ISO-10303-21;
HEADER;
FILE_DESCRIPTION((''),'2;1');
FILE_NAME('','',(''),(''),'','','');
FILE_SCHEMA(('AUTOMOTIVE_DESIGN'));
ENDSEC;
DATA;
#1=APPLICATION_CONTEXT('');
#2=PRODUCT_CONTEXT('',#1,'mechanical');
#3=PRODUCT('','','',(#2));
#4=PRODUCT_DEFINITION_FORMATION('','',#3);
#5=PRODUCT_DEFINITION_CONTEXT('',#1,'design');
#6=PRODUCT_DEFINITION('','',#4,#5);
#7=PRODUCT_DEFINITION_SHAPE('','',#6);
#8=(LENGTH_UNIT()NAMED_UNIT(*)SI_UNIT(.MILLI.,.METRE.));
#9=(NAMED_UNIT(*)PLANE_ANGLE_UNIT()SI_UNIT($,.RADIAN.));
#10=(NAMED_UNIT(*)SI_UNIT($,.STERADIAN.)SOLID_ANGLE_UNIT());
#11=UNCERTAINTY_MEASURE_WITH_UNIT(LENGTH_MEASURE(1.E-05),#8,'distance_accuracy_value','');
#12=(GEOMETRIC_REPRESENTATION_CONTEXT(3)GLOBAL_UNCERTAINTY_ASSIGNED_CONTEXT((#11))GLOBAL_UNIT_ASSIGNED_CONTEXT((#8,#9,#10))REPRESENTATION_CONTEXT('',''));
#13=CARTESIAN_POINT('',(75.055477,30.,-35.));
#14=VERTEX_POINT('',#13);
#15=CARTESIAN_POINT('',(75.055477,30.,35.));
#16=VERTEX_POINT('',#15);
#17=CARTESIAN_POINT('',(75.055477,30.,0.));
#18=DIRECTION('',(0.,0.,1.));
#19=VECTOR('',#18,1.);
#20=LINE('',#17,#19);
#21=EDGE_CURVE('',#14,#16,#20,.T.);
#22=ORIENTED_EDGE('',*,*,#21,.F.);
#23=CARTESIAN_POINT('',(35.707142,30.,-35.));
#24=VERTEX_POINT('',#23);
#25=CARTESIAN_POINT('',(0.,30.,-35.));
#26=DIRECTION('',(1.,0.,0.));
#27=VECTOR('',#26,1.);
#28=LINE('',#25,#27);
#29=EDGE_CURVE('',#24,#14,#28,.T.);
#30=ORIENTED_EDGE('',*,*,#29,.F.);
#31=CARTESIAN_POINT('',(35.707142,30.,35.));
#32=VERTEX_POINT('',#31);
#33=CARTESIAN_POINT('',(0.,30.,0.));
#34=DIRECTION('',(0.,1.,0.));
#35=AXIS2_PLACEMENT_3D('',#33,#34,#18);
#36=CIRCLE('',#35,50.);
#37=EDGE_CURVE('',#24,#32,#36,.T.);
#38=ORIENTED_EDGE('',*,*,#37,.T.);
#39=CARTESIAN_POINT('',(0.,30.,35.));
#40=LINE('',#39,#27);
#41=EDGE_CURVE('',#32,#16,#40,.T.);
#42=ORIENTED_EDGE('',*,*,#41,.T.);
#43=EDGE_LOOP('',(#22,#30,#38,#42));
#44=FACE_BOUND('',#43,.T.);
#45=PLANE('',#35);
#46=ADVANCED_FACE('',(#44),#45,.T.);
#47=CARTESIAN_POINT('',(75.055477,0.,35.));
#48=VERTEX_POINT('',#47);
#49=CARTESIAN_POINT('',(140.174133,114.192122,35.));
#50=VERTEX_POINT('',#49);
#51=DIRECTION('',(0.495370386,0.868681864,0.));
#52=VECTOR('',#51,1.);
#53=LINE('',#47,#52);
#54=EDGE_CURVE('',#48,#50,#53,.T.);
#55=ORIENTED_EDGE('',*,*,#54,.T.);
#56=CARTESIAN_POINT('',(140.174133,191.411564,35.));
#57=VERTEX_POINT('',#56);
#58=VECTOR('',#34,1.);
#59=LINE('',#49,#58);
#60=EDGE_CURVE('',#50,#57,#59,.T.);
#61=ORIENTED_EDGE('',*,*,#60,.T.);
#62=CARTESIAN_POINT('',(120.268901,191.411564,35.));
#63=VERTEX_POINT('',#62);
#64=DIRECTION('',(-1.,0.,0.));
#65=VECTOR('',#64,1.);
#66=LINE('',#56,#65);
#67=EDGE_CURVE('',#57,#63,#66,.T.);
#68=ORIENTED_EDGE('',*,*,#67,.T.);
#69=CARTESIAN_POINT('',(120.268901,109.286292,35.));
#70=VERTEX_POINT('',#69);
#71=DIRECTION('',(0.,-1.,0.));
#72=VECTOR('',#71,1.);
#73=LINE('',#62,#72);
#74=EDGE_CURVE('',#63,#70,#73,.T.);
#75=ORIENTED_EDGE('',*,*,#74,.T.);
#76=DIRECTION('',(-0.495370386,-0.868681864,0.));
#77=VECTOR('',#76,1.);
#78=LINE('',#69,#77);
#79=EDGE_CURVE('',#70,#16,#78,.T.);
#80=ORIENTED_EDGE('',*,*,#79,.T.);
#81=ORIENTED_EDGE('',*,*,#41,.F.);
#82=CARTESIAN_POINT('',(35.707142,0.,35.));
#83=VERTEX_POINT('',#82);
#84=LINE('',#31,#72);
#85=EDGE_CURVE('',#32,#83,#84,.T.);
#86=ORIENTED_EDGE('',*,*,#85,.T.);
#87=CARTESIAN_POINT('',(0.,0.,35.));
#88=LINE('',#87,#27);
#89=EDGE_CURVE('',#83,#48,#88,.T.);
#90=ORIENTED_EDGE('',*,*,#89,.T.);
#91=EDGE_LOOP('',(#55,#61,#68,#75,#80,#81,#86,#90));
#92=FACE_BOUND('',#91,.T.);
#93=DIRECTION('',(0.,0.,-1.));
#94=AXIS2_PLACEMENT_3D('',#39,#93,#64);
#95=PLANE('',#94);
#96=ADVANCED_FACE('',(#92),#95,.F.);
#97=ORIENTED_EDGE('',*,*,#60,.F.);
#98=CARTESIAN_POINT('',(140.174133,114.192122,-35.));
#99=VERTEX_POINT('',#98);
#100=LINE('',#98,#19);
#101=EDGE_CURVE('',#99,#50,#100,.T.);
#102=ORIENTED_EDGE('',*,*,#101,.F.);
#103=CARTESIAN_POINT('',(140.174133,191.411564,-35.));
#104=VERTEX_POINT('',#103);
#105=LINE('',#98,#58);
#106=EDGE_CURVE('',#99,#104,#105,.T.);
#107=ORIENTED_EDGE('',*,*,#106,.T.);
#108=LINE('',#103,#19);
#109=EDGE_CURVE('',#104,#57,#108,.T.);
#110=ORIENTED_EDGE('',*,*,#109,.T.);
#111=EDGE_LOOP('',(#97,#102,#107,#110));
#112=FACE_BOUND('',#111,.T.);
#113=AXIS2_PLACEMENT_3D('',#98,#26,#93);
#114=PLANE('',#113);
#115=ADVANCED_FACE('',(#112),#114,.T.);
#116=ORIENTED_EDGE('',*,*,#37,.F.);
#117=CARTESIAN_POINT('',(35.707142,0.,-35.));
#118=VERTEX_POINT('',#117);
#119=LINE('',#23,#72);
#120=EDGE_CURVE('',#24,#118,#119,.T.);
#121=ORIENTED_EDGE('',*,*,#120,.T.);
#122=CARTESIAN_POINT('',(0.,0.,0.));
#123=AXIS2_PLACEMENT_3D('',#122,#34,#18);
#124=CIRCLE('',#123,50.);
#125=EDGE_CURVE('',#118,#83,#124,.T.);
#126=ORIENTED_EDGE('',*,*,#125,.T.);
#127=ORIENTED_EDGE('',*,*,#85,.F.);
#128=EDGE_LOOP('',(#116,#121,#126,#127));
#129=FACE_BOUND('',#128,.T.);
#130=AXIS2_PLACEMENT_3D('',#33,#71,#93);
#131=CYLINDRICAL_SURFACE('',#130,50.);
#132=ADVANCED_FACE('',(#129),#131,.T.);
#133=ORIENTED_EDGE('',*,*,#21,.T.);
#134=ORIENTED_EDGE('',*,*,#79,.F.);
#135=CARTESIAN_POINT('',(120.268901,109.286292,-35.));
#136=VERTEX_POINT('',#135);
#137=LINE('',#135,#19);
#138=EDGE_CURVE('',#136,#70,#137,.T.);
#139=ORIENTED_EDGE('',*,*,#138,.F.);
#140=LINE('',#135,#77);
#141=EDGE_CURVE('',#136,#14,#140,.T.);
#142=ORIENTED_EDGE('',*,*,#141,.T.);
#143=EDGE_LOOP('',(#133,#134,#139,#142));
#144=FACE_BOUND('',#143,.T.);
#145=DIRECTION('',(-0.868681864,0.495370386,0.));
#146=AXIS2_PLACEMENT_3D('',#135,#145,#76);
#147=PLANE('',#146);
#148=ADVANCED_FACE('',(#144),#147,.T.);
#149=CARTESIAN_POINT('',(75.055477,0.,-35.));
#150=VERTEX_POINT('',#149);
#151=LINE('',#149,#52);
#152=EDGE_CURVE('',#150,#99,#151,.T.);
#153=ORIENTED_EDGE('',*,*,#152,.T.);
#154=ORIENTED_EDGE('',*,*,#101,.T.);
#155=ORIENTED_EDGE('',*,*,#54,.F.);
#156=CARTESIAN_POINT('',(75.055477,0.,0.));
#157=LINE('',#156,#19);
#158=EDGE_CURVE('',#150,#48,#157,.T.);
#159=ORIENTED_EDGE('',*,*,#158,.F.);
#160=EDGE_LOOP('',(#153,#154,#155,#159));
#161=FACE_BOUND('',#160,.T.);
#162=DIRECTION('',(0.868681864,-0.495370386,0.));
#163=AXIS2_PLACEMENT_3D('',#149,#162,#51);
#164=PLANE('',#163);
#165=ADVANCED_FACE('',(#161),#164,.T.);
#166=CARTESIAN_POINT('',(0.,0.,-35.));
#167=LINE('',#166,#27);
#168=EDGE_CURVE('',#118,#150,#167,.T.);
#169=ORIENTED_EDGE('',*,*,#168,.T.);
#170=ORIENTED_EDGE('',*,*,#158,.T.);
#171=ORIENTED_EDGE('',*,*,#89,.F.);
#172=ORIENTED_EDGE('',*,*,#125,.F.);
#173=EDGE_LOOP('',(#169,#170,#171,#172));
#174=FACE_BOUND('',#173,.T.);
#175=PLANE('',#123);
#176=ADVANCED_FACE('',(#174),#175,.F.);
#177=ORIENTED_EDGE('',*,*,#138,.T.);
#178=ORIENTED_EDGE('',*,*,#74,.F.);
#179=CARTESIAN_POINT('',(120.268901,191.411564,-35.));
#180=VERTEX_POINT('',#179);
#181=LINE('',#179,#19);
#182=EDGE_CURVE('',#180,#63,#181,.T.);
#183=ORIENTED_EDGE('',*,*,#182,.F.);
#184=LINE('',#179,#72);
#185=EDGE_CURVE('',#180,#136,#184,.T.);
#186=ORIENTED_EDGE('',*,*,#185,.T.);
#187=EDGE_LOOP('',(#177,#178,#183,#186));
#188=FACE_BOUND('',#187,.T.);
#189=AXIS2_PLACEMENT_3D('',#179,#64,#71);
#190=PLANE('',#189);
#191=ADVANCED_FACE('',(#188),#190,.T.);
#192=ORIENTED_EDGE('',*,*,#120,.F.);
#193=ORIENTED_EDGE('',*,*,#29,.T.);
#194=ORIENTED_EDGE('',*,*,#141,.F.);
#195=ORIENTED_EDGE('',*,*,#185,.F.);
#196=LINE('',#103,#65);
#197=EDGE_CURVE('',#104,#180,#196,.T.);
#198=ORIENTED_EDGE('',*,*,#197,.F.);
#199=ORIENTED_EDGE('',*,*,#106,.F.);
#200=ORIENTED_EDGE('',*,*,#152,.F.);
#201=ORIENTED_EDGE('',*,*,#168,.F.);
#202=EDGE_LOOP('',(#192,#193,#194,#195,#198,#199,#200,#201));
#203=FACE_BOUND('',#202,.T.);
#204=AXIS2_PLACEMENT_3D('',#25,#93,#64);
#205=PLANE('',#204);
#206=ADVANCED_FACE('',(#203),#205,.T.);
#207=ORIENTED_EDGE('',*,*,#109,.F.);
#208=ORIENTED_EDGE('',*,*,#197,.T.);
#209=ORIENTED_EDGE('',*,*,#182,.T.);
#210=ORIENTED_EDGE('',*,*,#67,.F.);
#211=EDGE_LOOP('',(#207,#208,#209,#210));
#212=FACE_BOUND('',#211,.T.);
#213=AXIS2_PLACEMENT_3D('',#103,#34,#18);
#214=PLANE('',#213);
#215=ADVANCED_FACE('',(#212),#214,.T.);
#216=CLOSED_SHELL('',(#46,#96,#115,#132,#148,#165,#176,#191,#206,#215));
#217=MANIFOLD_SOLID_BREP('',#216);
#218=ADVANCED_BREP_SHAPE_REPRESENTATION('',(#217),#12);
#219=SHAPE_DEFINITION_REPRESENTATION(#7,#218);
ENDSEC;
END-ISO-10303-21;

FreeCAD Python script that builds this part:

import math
import FreeCAD as App
import Part
import Sketcher
from FreeCAD import Vector
Q = App.Units.Quantity

doc = App.newDocument("Part")
body = doc.addObject("PartDesign::Body", "Body")

sketch1 = body.newObject("Sketcher::SketchObject", "Sketch")
sketch1.AttachmentSupport = (doc.getObject("XZ_Plane"), [""])
sketch1.MapMode = "FlatFace"
sketch1.addGeometry([
    Part.LineSegment(Vector(35.707142, 35, 0), Vector(75.055477, 35, 0)),
    Part.LineSegment(Vector(75.055477, 35, 0), Vector(75.055477, -35, 0)),
    Part.LineSegment(Vector(75.055477, -35, 0), Vector(35.707142, -35, 0)),
    Part.ArcOfCircle(Part.Circle(Vector(0, 0, 0), Vector(0, 0, 1), 50), math.radians(44.427004), math.radians(315.572996)),
], False)
sketch1.addConstraint([
    Sketcher.Constraint("Coincident", 0, 2, 1, 1),
    Sketcher.Constraint("Coincident", 1, 2, 2, 1),
    Sketcher.Constraint("Coincident", 2, 2, 3, 2),
    Sketcher.Constraint("Coincident", 3, 1, 0, 1),
    Sketcher.Constraint("Horizontal", 0),
    Sketcher.Constraint("Vertical", 1),
    Sketcher.Constraint("Horizontal", 2),
    Sketcher.Constraint("Coincident", 3, 3, -1, 1),
    Sketcher.Constraint("Vertical", 2, 2, 3, 1),
    Sketcher.Constraint("Radius", 3, Q("50 mm")),
    Sketcher.Constraint("DistanceY", 1, 2, 1, 1, Q("70 mm")),
    Sketcher.Constraint("DistanceX", 0, 1, 0, 2, Q("39.348335 mm")),
])
pad1 = body.newObject("PartDesign::Pad", "Pad")
pad1.Profile = sketch1
pad1.Length = 30
pad1.Reversed = True

sketch2 = body.newObject("Sketcher::SketchObject", "Sketch001")
sketch2.AttachmentSupport = (doc.getObject("XY_Plane"), [""])
sketch2.MapMode = "FlatFace"
sketch2.AttachmentOffset = App.Placement(Vector(0, 0, 35), App.Rotation())
sketch2.addGeometry([
    Part.LineSegment(Vector(75.055477, 0, 0), Vector(140.174133, 114.192122, 0)),
    Part.LineSegment(Vector(140.174133, 114.192122, 0), Vector(140.174133, 191.411564, 0)),
    Part.LineSegment(Vector(140.174133, 191.411564, 0), Vector(120.268901, 191.411564, 0)),
    Part.LineSegment(Vector(120.268901, 191.411564, 0), Vector(120.268901, 109.286292, 0)),
    Part.LineSegment(Vector(120.268901, 109.286292, 0), Vector(75.055477, 30, 0)),
    Part.LineSegment(Vector(75.055477, 30, 0), Vector(75.055477, 0, 0)),
], False)
sketch2.addConstraint([
    Sketcher.Constraint("Coincident", 0, 2, 1, 1),
    Sketcher.Constraint("Coincident", 1, 2, 2, 1),
    Sketcher.Constraint("Coincident", 2, 2, 3, 1),
    Sketcher.Constraint("Coincident", 3, 2, 4, 1),
    Sketcher.Constraint("Coincident", 4, 2, 5, 1),
    Sketcher.Constraint("Coincident", 5, 2, 0, 1),
    Sketcher.Constraint("Vertical", 1),
    Sketcher.Constraint("Horizontal", 2),
    Sketcher.Constraint("Vertical", 3),
    Sketcher.Constraint("Vertical", 5),
    Sketcher.Constraint("PointOnObject", 5, 2, -1),
    Sketcher.Constraint("Parallel", 0, 4),
    Sketcher.Constraint("DistanceY", 5, 2, 5, 1, Q("30 mm")),
    Sketcher.Constraint("DistanceY", 1, 1, 1, 2, Q("77.219442 mm")),
    Sketcher.Constraint("DistanceY", 3, 2, 3, 1, Q("82.125272 mm")),
    Sketcher.Constraint("DistanceX", -1, 1, 2, 2, Q("120.268901 mm")),
    Sketcher.Constraint("Distance", 0, Q("131.45448 mm")),
    Sketcher.Constraint("DistanceX", 2, 2, 2, 1, Q("19.905233 mm")),
])
pad2 = body.newObject("PartDesign::Pad", "Pad001")
pad2.Profile = sketch2
pad2.Length = 70
pad2.Reversed = True

doc.recompute()
